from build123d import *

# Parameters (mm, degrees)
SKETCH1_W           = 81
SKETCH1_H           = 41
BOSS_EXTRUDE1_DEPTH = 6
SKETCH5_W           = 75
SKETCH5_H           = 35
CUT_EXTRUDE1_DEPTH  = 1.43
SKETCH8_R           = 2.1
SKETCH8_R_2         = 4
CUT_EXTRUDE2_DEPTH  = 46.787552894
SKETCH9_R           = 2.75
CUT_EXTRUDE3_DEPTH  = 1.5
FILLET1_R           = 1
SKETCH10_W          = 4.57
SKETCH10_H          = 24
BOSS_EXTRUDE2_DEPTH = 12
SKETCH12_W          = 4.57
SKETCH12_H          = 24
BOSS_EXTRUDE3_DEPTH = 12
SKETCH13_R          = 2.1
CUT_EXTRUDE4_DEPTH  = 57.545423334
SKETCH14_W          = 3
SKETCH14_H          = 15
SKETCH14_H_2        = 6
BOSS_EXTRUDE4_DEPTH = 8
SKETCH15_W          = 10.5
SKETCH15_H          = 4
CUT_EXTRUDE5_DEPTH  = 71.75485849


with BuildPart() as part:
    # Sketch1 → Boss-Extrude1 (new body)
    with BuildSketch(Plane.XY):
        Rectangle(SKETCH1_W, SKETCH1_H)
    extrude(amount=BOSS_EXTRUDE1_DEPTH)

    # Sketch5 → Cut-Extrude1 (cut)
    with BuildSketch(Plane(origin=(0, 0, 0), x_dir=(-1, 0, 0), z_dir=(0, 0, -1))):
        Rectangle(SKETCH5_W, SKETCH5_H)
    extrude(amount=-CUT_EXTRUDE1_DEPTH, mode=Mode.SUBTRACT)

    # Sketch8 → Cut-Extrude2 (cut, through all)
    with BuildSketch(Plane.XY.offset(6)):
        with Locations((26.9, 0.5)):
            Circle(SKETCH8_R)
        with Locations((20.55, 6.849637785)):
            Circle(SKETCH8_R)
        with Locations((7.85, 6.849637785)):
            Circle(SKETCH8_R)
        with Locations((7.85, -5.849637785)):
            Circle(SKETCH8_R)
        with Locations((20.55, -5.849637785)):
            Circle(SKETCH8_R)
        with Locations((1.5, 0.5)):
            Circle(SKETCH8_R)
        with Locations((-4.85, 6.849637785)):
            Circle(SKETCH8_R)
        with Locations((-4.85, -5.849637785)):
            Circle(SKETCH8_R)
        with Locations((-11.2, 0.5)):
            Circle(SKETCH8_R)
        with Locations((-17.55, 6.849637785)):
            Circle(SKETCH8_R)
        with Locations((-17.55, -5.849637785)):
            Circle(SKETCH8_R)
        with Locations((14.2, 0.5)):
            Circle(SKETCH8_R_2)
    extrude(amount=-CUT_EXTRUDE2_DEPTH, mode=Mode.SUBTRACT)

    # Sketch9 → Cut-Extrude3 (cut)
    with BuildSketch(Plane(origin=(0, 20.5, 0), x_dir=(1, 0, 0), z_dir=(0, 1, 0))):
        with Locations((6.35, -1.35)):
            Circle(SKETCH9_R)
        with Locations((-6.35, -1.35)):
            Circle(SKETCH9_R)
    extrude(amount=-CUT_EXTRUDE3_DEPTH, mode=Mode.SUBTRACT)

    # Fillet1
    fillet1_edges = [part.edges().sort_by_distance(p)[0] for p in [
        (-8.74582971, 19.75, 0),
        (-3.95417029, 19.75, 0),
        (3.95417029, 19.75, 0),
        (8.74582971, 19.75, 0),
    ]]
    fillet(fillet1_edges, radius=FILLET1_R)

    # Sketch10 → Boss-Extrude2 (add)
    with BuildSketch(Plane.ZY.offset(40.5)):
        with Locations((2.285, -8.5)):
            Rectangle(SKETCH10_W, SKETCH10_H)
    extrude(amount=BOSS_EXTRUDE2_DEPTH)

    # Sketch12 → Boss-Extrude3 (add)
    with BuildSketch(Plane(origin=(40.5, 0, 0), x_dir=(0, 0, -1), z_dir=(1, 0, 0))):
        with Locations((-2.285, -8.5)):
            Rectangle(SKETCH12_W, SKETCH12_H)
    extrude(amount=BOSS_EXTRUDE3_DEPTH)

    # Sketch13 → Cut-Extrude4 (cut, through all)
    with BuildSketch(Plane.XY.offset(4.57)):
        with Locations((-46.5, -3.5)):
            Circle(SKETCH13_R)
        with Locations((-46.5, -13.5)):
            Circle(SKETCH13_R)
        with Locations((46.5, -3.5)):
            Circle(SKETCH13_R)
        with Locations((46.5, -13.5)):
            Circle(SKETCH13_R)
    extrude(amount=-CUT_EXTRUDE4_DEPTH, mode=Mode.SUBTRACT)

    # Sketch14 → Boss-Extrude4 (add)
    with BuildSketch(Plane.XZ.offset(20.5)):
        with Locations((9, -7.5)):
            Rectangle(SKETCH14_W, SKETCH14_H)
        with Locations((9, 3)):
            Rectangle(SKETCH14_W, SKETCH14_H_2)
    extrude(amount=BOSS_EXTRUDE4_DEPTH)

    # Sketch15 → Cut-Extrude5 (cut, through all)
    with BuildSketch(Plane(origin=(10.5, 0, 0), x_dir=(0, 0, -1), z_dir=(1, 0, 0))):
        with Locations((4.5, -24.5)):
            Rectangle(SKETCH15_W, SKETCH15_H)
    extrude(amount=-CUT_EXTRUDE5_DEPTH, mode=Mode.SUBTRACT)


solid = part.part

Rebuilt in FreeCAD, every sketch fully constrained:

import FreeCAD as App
import Part
import Sketcher
Q = App.Units.Quantity


def edges_at(feature, points):
    """Names of the edges that pass closest to the given points."""
    edges = feature.Shape.Edges
    near = lambda p: min(range(len(edges)), key=lambda i: edges[i].distToShape(Part.Vertex(*p))[0])
    return sorted({f"Edge{near(p) + 1}" for p in points})


def add_polygon(sketch, points):
    """Adds a closed chain of lines whose ends are joined by coincident constraints."""
    first, n = sketch.GeometryCount, len(points)
    for a, b in zip(points, points[1:] + points[:1]):
        sketch.addGeometry(Part.LineSegment(App.Vector(*a, 0), App.Vector(*b, 0)), False)
    for i in range(n):
        sketch.addConstraint(Sketcher.Constraint("Coincident", first + i, 2, first + (i + 1) % n, 1))

doc = App.newDocument("Part")
body = doc.addObject("PartDesign::Body", "Body")

# Sketch on XY plane
sketch1 = body.newObject("Sketcher::SketchObject", "Sketch")
sketch1.AttachmentSupport = (doc.getObject("XY_Plane"), [""])
sketch1.MapMode = "FlatFace"
add_polygon(sketch1, [(-40.5, 20.5), (-40.5, -20.5), (40.5, -20.5), (40.5, 20.5)])  # lines 0-3
sketch1.addConstraint(Sketcher.Constraint("Vertical", 0))
sketch1.addConstraint(Sketcher.Constraint("Horizontal", 1))
sketch1.addConstraint(Sketcher.Constraint("Vertical", 2))
sketch1.addConstraint(Sketcher.Constraint("Horizontal", 3))
sketch1.addConstraint(Sketcher.Constraint("Symmetric", 0, 2, 2, 2, -1, 1))
sketch1.addConstraint(Sketcher.Constraint("DistanceX", 1, 1, 1, 2, Q("81 mm")))
sketch1.addConstraint(Sketcher.Constraint("DistanceY", 0, 2, 0, 1, Q("41 mm")))
pad1 = body.newObject("PartDesign::Pad", "Pad")
pad1.Profile = sketch1
pad1.Length = 6

# Sketch on XY plane
sketch2 = body.newObject("Sketcher::SketchObject", "Sketch001")
sketch2.AttachmentSupport = (doc.getObject("XY_Plane"), [""])
sketch2.MapMode = "FlatFace"
add_polygon(sketch2, [(37.5, 17.5), (37.5, -17.5), (-37.5, -17.5), (-37.5, 17.5)])  # lines 0-3
sketch2.addConstraint(Sketcher.Constraint("Vertical", 0))
sketch2.addConstraint(Sketcher.Constraint("Horizontal", 1))
sketch2.addConstraint(Sketcher.Constraint("Vertical", 2))
sketch2.addConstraint(Sketcher.Constraint("Horizontal", 3))
sketch2.addConstraint(Sketcher.Constraint("Symmetric", 0, 2, 2, 2, -1, 1))
sketch2.addConstraint(Sketcher.Constraint("DistanceX", 1, 2, 1, 1, Q("75 mm")))
sketch2.addConstraint(Sketcher.Constraint("DistanceY", 0, 2, 0, 1, Q("35 mm")))
pocket1 = body.newObject("PartDesign::Pocket", "Pocket")
pocket1.Profile = sketch2
pocket1.Length = 1.43
pocket1.Reversed = True

# Sketch on XY plane
sketch3 = body.newObject("Sketcher::SketchObject", "Sketch002")
sketch3.AttachmentSupport = (doc.getObject("XY_Plane"), [""])
sketch3.MapMode = "FlatFace"
sketch3.AttachmentOffset = App.Placement(App.Vector(0, 0, 6), App.Rotation())
sketch3.addGeometry(Part.Circle(App.Vector(26.9, 0.5, 0), App.Vector(0, 0, 1), 2.1), False)
sketch3.addGeometry(Part.Circle(App.Vector(20.55, 6.849638, 0), App.Vector(0, 0, 1), 2.1), False)
sketch3.addGeometry(Part.Circle(App.Vector(7.85, 6.849638, 0), App.Vector(0, 0, 1), 2.1), False)
sketch3.addGeometry(Part.Circle(App.Vector(7.85, -5.849638, 0), App.Vector(0, 0, 1), 2.1), False)
sketch3.addGeometry(Part.Circle(App.Vector(20.55, -5.849638, 0), App.Vector(0, 0, 1), 2.1), False)
sketch3.addGeometry(Part.Circle(App.Vector(1.5, 0.5, 0), App.Vector(0, 0, 1), 2.1), False)
sketch3.addGeometry(Part.Circle(App.Vector(-4.85, 6.849638, 0), App.Vector(0, 0, 1), 2.1), False)
sketch3.addGeometry(Part.Circle(App.Vector(-4.85, -5.849638, 0), App.Vector(0, 0, 1), 2.1), False)
sketch3.addGeometry(Part.Circle(App.Vector(-11.2, 0.5, 0), App.Vector(0, 0, 1), 2.1), False)
sketch3.addGeometry(Part.Circle(App.Vector(-17.55, 6.849638, 0), App.Vector(0, 0, 1), 2.1), False)
sketch3.addGeometry(Part.Circle(App.Vector(-17.55, -5.849638, 0), App.Vector(0, 0, 1), 2.1), False)
sketch3.addGeometry(Part.Circle(App.Vector(14.2, 0.5, 0), App.Vector(0, 0, 1), 4), False)
sketch3.addConstraint(Sketcher.Constraint("Equal", 0, 1))
sketch3.addConstraint(Sketcher.Constraint("Equal", 1, 2))
sketch3.addConstraint(Sketcher.Constraint("Equal", 2, 3))
sketch3.addConstraint(Sketcher.Constraint("Equal", 3, 4))
sketch3.addConstraint(Sketcher.Constraint("Equal", 4, 5))
sketch3.addConstraint(Sketcher.Constraint("Equal", 5, 6))
sketch3.addConstraint(Sketcher.Constraint("Equal", 6, 7))
sketch3.addConstraint(Sketcher.Constraint("Equal", 7, 8))
sketch3.addConstraint(Sketcher.Constraint("Equal", 8, 9))
sketch3.addConstraint(Sketcher.Constraint("Equal", 9, 10))
sketch3.addConstraint(Sketcher.Constraint("Horizontal", 1, 3, 2, 3))
sketch3.addConstraint(Sketcher.Constraint("Horizontal", 3, 3, 4, 3))
sketch3.addConstraint(Sketcher.Constraint("Horizontal", 0, 3, 5, 3))
sketch3.addConstraint(Sketcher.Constraint("Horizontal", 2, 3, 6, 3))
sketch3.addConstraint(Sketcher.Constraint("Horizontal", 4, 3, 7, 3))
sketch3.addConstraint(Sketcher.Constraint("Horizontal", 5, 3, 8, 3))
sketch3.addConstraint(Sketcher.Constraint("Horizontal", 6, 3, 9, 3))
sketch3.addConstraint(Sketcher.Constraint("Horizontal", 7, 3, 10, 3))
sketch3.addConstraint(Sketcher.Constraint("Horizontal", 8, 3, 11, 3))
sketch3.addConstraint(Sketcher.Constraint("Vertical", 2, 3, 3, 3))
sketch3.addConstraint(Sketcher.Constraint("Vertical", 1, 3, 4, 3))
sketch3.addConstraint(Sketcher.Constraint("Vertical", 6, 3, 7, 3))
sketch3.addConstraint(Sketcher.Constraint("Vertical", 9, 3, 10, 3))
sketch3.addConstraint(Sketcher.Constraint("Diameter", 11, Q("8 mm")))
sketch3.addConstraint(Sketcher.Constraint("Diameter", 0, Q("4.2 mm")))
sketch3.addConstraint(Sketcher.Constraint("DistanceX", -1, 1, 0, 3, Q("26.9 mm")))
sketch3.addConstraint(Sketcher.Constraint("DistanceY", -1, 1, 0, 3, Q("0.5 mm")))
sketch3.addConstraint(Sketcher.Constraint("DistanceX", -1, 1, 5, 3, Q("1.5 mm")))
sketch3.addConstraint(Sketcher.Constraint("DistanceX", 8, 3, -1, 1, Q("11.2 mm")))
sketch3.addConstraint(Sketcher.Constraint("DistanceX", -1, 1, 11, 3, Q("14.2 mm")))
sketch3.addConstraint(Sketcher.Constraint("DistanceX", 2, 3, 1, 3, Q("12.7 mm")))
sketch3.addConstraint(Sketcher.Constraint("DistanceX", 6, 3, 2, 3, Q("12.7 mm")))
sketch3.addConstraint(Sketcher.Constraint("DistanceX", 9, 3, 6, 3, Q("12.7 mm")))
sketch3.addConstraint(Sketcher.Constraint("DistanceX", -1, 1, 1, 3, Q("20.55 mm")))
sketch3.addConstraint(Sketcher.Constraint("DistanceY", -1, 1, 1, 3, Q("6.849638 mm")))
sketch3.addConstraint(Sketcher.Constraint("DistanceY", 3, 3, -1, 1, Q("5.849638 mm")))
pocket2 = body.newObject("PartDesign::Pocket", "Pocket001")
pocket2.Profile = sketch3
pocket2.Type = "ThroughAll"

# Sketch on XZ plane
sketch4 = body.newObject("Sketcher::SketchObject", "Sketch003")
sketch4.AttachmentSupport = (doc.getObject("XZ_Plane"), [""])
sketch4.MapMode = "FlatFace"
sketch4.AttachmentOffset = App.Placement(App.Vector(0, 0, -20.5), App.Rotation())
sketch4.addGeometry(Part.Circle(App.Vector(6.35, 1.35, 0), App.Vector(0, 0, 1), 2.75), False)
sketch4.addGeometry(Part.Circle(App.Vector(-6.35, 1.35, 0), App.Vector(0, 0, 1), 2.75), False)
sketch4.addConstraint(Sketcher.Constraint("Equal", 0, 1))
sketch4.addConstraint(Sketcher.Constraint("Symmetric", 0, 3, 1, 3, -2))
sketch4.addConstraint(Sketcher.Constraint("Diameter", 0, Q("5.5 mm")))
sketch4.addConstraint(Sketcher.Constraint("DistanceX", 1, 3, 0, 3, Q("12.7 mm")))
sketch4.addConstraint(Sketcher.Constraint("DistanceY", -1, 1, 0, 3, Q("1.35 mm")))
pocket3 = body.newObject("PartDesign::Pocket", "Pocket002")
pocket3.Profile = sketch4
pocket3.Length = 1.5
pocket3.Reversed = True
doc.recompute()

fillet = body.newObject("PartDesign::Fillet", "Fillet")
fillet.Base = (pocket3, edges_at(pocket3, [
    (-8.746, 19.75, 0),
    (-3.954, 19.75, 0),
    (3.954, 19.75, 0),
    (8.746, 19.75, 0),
]))
fillet.Radius = 1

# Sketch on YZ plane
sketch5 = body.newObject("Sketcher::SketchObject", "Sketch004")
sketch5.AttachmentSupport = (doc.getObject("YZ_Plane"), [""])
sketch5.MapMode = "FlatFace"
sketch5.AttachmentOffset = App.Placement(App.Vector(0, 0, -40.5), App.Rotation())
add_polygon(sketch5, [(3.5, 0), (-20.5, 0), (-20.5, 4.57), (3.5, 4.57)])  # lines 0-3
sketch5.addConstraint(Sketcher.Constraint("Horizontal", 0))
sketch5.addConstraint(Sketcher.Constraint("Vertical", 1))
sketch5.addConstraint(Sketcher.Constraint("Horizontal", 2))
sketch5.addConstraint(Sketcher.Constraint("Vertical", 3))
sketch5.addConstraint(Sketcher.Constraint("PointOnObject", 0, 2, -1))
sketch5.addConstraint(Sketcher.Constraint("DistanceX", 0, 2, 0, 1, Q("24 mm")))
sketch5.addConstraint(Sketcher.Constraint("DistanceY", 1, 1, 1, 2, Q("4.57 mm")))
sketch5.addConstraint(Sketcher.Constraint("DistanceX", 0, 2, -1, 1, Q("20.5 mm")))
pad2 = body.newObject("PartDesign::Pad", "Pad001")
pad2.Profile = sketch5
pad2.Length = 12
pad2.Reversed = True

# Sketch on YZ plane
sketch6 = body.newObject("Sketcher::SketchObject", "Sketch005")
sketch6.AttachmentSupport = (doc.getObject("YZ_Plane"), [""])
sketch6.MapMode = "FlatFace"
sketch6.AttachmentOffset = App.Placement(App.Vector(0, 0, 40.5), App.Rotation())
add_polygon(sketch6, [(3.5, 4.57), (-20.5, 4.57), (-20.5, 0), (3.5, 0)])  # lines 0-3
sketch6.addConstraint(Sketcher.Constraint("Horizontal", 0))
sketch6.addConstraint(Sketcher.Constraint("Vertical", 1))
sketch6.addConstraint(Sketcher.Constraint("Horizontal", 2))
sketch6.addConstraint(Sketcher.Constraint("Vertical", 3))
sketch6.addConstraint(Sketcher.Constraint("PointOnObject", 1, 2, -1))
sketch6.addConstraint(Sketcher.Constraint("DistanceX", 0, 2, 0, 1, Q("24 mm")))
sketch6.addConstraint(Sketcher.Constraint("DistanceY", 1, 2, 1, 1, Q("4.57 mm")))
sketch6.addConstraint(Sketcher.Constraint("DistanceX", 0, 2, -1, 1, Q("20.5 mm")))
pad3 = body.newObject("PartDesign::Pad", "Pad002")
pad3.Profile = sketch6
pad3.Length = 12

# Sketch on XY plane
sketch7 = body.newObject("Sketcher::SketchObject", "Sketch006")
sketch7.AttachmentSupport = (doc.getObject("XY_Plane"), [""])
sketch7.MapMode = "FlatFace"
sketch7.AttachmentOffset = App.Placement(App.Vector(0, 0, 4.57), App.Rotation())
sketch7.addGeometry(Part.Circle(App.Vector(-46.5, -3.5, 0), App.Vector(0, 0, 1), 2.1), False)
sketch7.addGeometry(Part.Circle(App.Vector(-46.5, -13.5, 0), App.Vector(0, 0, 1), 2.1), False)
sketch7.addGeometry(Part.Circle(App.Vector(46.5, -3.5, 0), App.Vector(0, 0, 1), 2.1), False)
sketch7.addGeometry(Part.Circle(App.Vector(46.5, -13.5, 0), App.Vector(0, 0, 1), 2.1), False)
sketch7.addConstraint(Sketcher.Constraint("Equal", 0, 1))
sketch7.addConstraint(Sketcher.Constraint("Equal", 1, 2))
sketch7.addConstraint(Sketcher.Constraint("Equal", 2, 3))
sketch7.addConstraint(Sketcher.Constraint("Symmetric", 0, 3, 2, 3, -2))
sketch7.addConstraint(Sketcher.Constraint("Symmetric", 1, 3, 3, 3, -2))
sketch7.addConstraint(Sketcher.Constraint("Vertical", 0, 3, 1, 3))
sketch7.addConstraint(Sketcher.Constraint("Diameter", 0, Q("4.2 mm")))
sketch7.addConstraint(Sketcher.Constraint("DistanceY", 1, 3, 0, 3, Q("10 mm")))
sketch7.addConstraint(Sketcher.Constraint("DistanceX", 0, 3, 2, 3, Q("93 mm")))
sketch7.addConstraint(Sketcher.Constraint("DistanceY", 0, 3, -1, 1, Q("3.5 mm")))
pocket4 = body.newObject("PartDesign::Pocket", "Pocket003")
pocket4.Profile = sketch7
pocket4.Type = "ThroughAll"

# Sketch on XZ plane
sketch8 = body.newObject("Sketcher::SketchObject", "Sketch007")
sketch8.AttachmentSupport = (doc.getObject("XZ_Plane"), [""])
sketch8.MapMode = "FlatFace"
sketch8.AttachmentOffset = App.Placement(App.Vector(0, 0, 20.5), App.Rotation())
add_polygon(sketch8, [(7.5, -15), (10.5, -15), (10.5, 6), (7.5, 6)])  # lines 0-3
sketch8.addConstraint(Sketcher.Constraint("Horizontal", 0))
sketch8.addConstraint(Sketcher.Constraint("Vertical", 1))
sketch8.addConstraint(Sketcher.Constraint("Horizontal", 2))
sketch8.addConstraint(Sketcher.Constraint("Vertical", 3))
sketch8.addConstraint(Sketcher.Constraint("DistanceX", 0, 1, 0, 2, Q("3 mm")))
sketch8.addConstraint(Sketcher.Constraint("DistanceY", 1, 1, 1, 2, Q("21 mm")))
sketch8.addConstraint(Sketcher.Constraint("DistanceY", 0, 2, -1, 1, Q("15 mm")))
sketch8.addConstraint(Sketcher.Constraint("DistanceX", -1, 1, 0, 2, Q("10.5 mm")))
pad4 = body.newObject("PartDesign::Pad", "Pad003")
pad4.Profile = sketch8
pad4.Length = 8

# Sketch on YZ plane
sketch9 = body.newObject("Sketcher::SketchObject", "Sketch008")
sketch9.AttachmentSupport = (doc.getObject("YZ_Plane"), [""])
sketch9.MapMode = "FlatFace"
sketch9.AttachmentOffset = App.Placement(App.Vector(0, 0, 10.5), App.Rotation())
add_polygon(sketch9, [(-22.5, 0.75), (-26.5, 0.75), (-26.5, -9.75), (-22.5, -9.75)])  # lines 0-3
sketch9.addConstraint(Sketcher.Constraint("Horizontal", 0))
sketch9.addConstraint(Sketcher.Constraint("Vertical", 1))
sketch9.addConstraint(Sketcher.Constraint("Horizontal", 2))
sketch9.addConstraint(Sketcher.Constraint("Vertical", 3))
sketch9.addConstraint(Sketcher.Constraint("DistanceX", 0, 2, 0, 1, Q("4 mm")))
sketch9.addConstraint(Sketcher.Constraint("DistanceY", 1, 2, 1, 1, Q("10.5 mm")))
sketch9.addConstraint(Sketcher.Constraint("DistanceX", 0, 2, -1, 1, Q("26.5 mm")))
sketch9.addConstraint(Sketcher.Constraint("DistanceY", -1, 1, 0, 2, Q("0.75 mm")))
pocket5 = body.newObject("PartDesign::Pocket", "Pocket004")
pocket5.Profile = sketch9
pocket5.Type = "ThroughAll"

doc.recompute()
